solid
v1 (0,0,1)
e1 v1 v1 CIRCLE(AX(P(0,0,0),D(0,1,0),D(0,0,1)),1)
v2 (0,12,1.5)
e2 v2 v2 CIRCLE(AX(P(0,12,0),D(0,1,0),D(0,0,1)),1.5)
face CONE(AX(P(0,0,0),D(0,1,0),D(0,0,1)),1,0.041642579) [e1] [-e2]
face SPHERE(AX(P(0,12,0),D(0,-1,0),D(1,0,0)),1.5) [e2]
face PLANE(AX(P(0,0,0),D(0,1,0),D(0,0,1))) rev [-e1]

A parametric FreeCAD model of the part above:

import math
import FreeCAD as App
import Part
import Sketcher

doc = App.newDocument("Part")
body = doc.addObject("PartDesign::Body", "Body")

sketch1 = doc.addObject("Sketcher::SketchObject", "Sketch")
body.addObject(sketch1)
sketch1.AttachmentSupport = (doc.XZ_Plane, [""])
sketch1.MapMode = "FlatFace"
sketch1.addGeometry(Part.Circle(App.Vector(0, 0, 0), App.Vector(0, 0, 1), 1), False)
sketch1.addConstraint([
    Sketcher.Constraint("Coincident", 0, 3, -1, 1),
    Sketcher.Constraint("Diameter", 0, 2.0),
])

sketch2 = doc.addObject("Sketcher::SketchObject", "Sketch001")
body.addObject(sketch2)
sketch2.AttachmentSupport = (doc.XZ_Plane, [""])
sketch2.MapMode = "FlatFace"
sketch2.AttachmentOffset = App.Placement(App.Vector(0, 0, -12), App.Rotation())
sketch2.addGeometry(Part.Circle(App.Vector(0, 0, 0), App.Vector(0, 0, 1), 1.5), False)
sketch2.addConstraint([
    Sketcher.Constraint("Coincident", 0, 3, -1, 1),
    Sketcher.Constraint("Diameter", 0, 3.0),
])

additiveloft = doc.addObject("PartDesign::AdditiveLoft", "AdditiveLoft")
body.addObject(additiveloft)
additiveloft.Profile = sketch1
additiveloft.Sections = [sketch2]

sketch3 = doc.addObject("Sketcher::SketchObject", "Sketch002")
body.addObject(sketch3)
sketch3.AttachmentSupport = (doc.XY_Plane, [""])
sketch3.MapMode = "FlatFace"
sketch3.addGeometry([
    Part.LineSegment(App.Vector(0, 12, 0), App.Vector(1.5, 12, 0)),
    Part.ArcOfCircle(Part.Circle(App.Vector(0, 12, 0), App.Vector(0, 0, 1), 1.5), math.radians(0), math.radians(90)),
    Part.LineSegment(App.Vector(0, 13.5, 0), App.Vector(0, 12, 0)),
], False)
sketch3.addConstraint([
    Sketcher.Constraint("Coincident", 0, 2, 1, 1),
    Sketcher.Constraint("Coincident", 1, 2, 2, 1),
    Sketcher.Constraint("Coincident", 2, 2, 0, 1),
    Sketcher.Constraint("Horizontal", 0),
    Sketcher.Constraint("Vertical", 2),
    Sketcher.Constraint("Coincident", 2, 2, 1, 3),
    Sketcher.Constraint("PointOnObject", 1, 3, -2),
    Sketcher.Constraint("Radius", 1, 1.5),
    Sketcher.Constraint("DistanceY", -1, 1, 1, 3, 12.0),
])
revolution = doc.addObject("PartDesign::Revolution", "Revolution")
body.addObject(revolution)
revolution.Profile = sketch3
revolution.ReferenceAxis = (sketch3, ["V_Axis"])
revolution.Angle = 360

doc.recompute()
